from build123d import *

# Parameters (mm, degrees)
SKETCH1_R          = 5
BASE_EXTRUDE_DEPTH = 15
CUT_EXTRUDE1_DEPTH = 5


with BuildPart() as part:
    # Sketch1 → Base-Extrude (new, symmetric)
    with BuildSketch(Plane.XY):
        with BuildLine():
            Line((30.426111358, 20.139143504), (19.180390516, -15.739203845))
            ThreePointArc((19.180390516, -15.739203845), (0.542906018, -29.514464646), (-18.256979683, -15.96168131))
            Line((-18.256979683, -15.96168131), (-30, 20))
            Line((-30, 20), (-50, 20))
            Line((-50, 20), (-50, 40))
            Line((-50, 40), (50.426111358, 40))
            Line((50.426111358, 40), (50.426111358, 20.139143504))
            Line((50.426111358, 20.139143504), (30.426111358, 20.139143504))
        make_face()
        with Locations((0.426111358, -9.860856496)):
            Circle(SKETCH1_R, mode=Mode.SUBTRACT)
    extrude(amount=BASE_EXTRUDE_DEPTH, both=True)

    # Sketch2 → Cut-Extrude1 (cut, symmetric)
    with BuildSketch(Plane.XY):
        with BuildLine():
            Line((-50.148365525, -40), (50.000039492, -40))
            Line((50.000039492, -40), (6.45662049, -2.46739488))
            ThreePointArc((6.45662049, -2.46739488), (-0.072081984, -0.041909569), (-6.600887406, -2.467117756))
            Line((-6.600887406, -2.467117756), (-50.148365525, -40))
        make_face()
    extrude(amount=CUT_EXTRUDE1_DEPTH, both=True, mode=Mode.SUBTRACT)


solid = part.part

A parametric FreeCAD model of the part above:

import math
import FreeCAD as App
import Part
import Sketcher
from FreeCAD import Vector
Q = App.Units.Quantity

doc = App.newDocument("Part")
body = doc.addObject("PartDesign::Body", "Body")

sketch1 = body.newObject("Sketcher::SketchObject", "Sketch")
sketch1.AttachmentSupport = (doc.getObject("XY_Plane"), [""])
sketch1.MapMode = "FlatFace"
sketch1.addGeometry(Part.LineSegment(Vector(19.180391, -15.739204, 0), Vector(30.426111, 20.139144, 0)), False)
sketch1.addGeometry(Part.LineSegment(Vector(30.426111, 20.139144, 0), Vector(50.426111, 20.139144, 0)), False)
sketch1.addGeometry(Part.LineSegment(Vector(50.426111, 20.139144, 0), Vector(50.426111, 40, 0)), False)
sketch1.addGeometry(Part.LineSegment(Vector(50.426111, 40, 0), Vector(-50, 40, 0)), False)
sketch1.addGeometry(Part.LineSegment(Vector(-50, 40, 0), Vector(-50, 20, 0)), False)
sketch1.addGeometry(Part.LineSegment(Vector(-50, 20, 0), Vector(-30, 20, 0)), False)
sketch1.addGeometry(Part.LineSegment(Vector(-30, 20, 0), Vector(-18.25698, -15.961681, 0)), False)
sketch1.addGeometry(Part.ArcOfCircle(Part.Circle(Vector(0.426111, -9.860856, 0), Vector(0, 0, 1), 19.653955), math.radians(-161.915935), math.radians(-17.403095)), False)
sketch1.addGeometry(Part.Circle(Vector(0.426111, -9.860856, 0), Vector(0, 0, 1), 5), False)
sketch1.addConstraint(Sketcher.Constraint("Coincident", 0, 2, 1, 1))
sketch1.addConstraint(Sketcher.Constraint("Coincident", 1, 2, 2, 1))
sketch1.addConstraint(Sketcher.Constraint("Coincident", 2, 2, 3, 1))
sketch1.addConstraint(Sketcher.Constraint("Coincident", 3, 2, 4, 1))
sketch1.addConstraint(Sketcher.Constraint("Coincident", 4, 2, 5, 1))
sketch1.addConstraint(Sketcher.Constraint("Coincident", 5, 2, 6, 1))
sketch1.addConstraint(Sketcher.Constraint("Tangent", 6, 2, 7, 1))
sketch1.addConstraint(Sketcher.Constraint("Tangent", 7, 2, 0, 1))
sketch1.addConstraint(Sketcher.Constraint("Horizontal", 1))
sketch1.addConstraint(Sketcher.Constraint("Vertical", 2))
sketch1.addConstraint(Sketcher.Constraint("Horizontal", 3))
sketch1.addConstraint(Sketcher.Constraint("Vertical", 4))
sketch1.addConstraint(Sketcher.Constraint("Horizontal", 5))
sketch1.addConstraint(Sketcher.Constraint("Coincident", 8, 3, 7, 3))
sketch1.addConstraint(Sketcher.Constraint("Equal", 1, 5))
sketch1.addConstraint(Sketcher.Constraint("Equal", 5, 4))
sketch1.addConstraint(Sketcher.Constraint("Diameter", 8, Q("10 mm")))
sketch1.addConstraint(Sketcher.Constraint("DistanceX", 1, 1, 1, 2, Q("20 mm")))
sketch1.addConstraint(Sketcher.Constraint("DistanceY", -1, 1, 2, 2, Q("40 mm")))
sketch1.addConstraint(Sketcher.Constraint("DistanceX", 3, 2, -1, 1, Q("50 mm")))
sketch1.addConstraint(Sketcher.Constraint("DistanceX", 8, 3, 0, 2, Q("30 mm")))
sketch1.addConstraint(Sketcher.Constraint("DistanceY", 8, 3, 0, 2, Q("30 mm")))
sketch1.addConstraint(Sketcher.Constraint("Radius", 7, Q("19.653955 mm")))
sketch1.addConstraint(Sketcher.Constraint("DistanceX", 3, 2, 3, 1, Q("100.426111 mm")))
sketch1.addConstraint(Sketcher.Constraint("DistanceY", 2, 1, 2, 2, Q("19.860856 mm")))
pad1 = body.newObject("PartDesign::Pad", "Pad")
pad1.Profile = sketch1
pad1.Length = 30
pad1.Midplane = True

sketch2 = body.newObject("Sketcher::SketchObject", "Sketch001")
sketch2.AttachmentSupport = (doc.getObject("XY_Plane"), [""])
sketch2.MapMode = "FlatFace"
sketch2.addGeometry(Part.LineSegment(Vector(-50.148366, -40, 0), Vector(50.000039, -40, 0)), False)
sketch2.addGeometry(Part.LineSegment(Vector(50.000039, -40, 0), Vector(6.45662, -2.467395, 0)), False)
sketch2.addGeometry(Part.ArcOfCircle(Part.Circle(Vector(-0.072294, -10.04191, 0), Vector(0, 0, 1), 10), math.radians(49.240037), math.radians(130.757531)), False)
sketch2.addGeometry(Part.LineSegment(Vector(-6.600887, -2.467118, 0), Vector(-50.148366, -40, 0)), False)
sketch2.addConstraint(Sketcher.Constraint("Coincident", 0, 2, 1, 1))
sketch2.addConstraint(Sketcher.Constraint("Tangent", 1, 2, 2, 1))
sketch2.addConstraint(Sketcher.Constraint("Tangent", 2, 2, 3, 1))
sketch2.addConstraint(Sketcher.Constraint("Coincident", 3, 2, 0, 1))
sketch2.addConstraint(Sketcher.Constraint("Horizontal", 0))
sketch2.addConstraint(Sketcher.Constraint("Radius", 2, Q("10 mm")))
sketch2.addConstraint(Sketcher.Constraint("DistanceY", 0, 2, -1, 1, Q("40 mm")))
sketch2.addConstraint(Sketcher.Constraint("Distance", 3, Q("57.49 mm")))
sketch2.addConstraint(Sketcher.Constraint("DistanceX", 0, 1, 0, 2, Q("100.148405 mm")))
sketch2.addConstraint(Sketcher.Constraint("DistanceY", 2, 3, -1, 1, Q("10.04191 mm")))
sketch2.addConstraint(Sketcher.Constraint("DistanceX", -1, 1, 0, 2, Q("50.000039 mm")))
pocket1 = body.newObject("PartDesign::Pocket", "Pocket")
pocket1.Profile = sketch2
pocket1.Length = 10
pocket1.Midplane = True

doc.recompute()
